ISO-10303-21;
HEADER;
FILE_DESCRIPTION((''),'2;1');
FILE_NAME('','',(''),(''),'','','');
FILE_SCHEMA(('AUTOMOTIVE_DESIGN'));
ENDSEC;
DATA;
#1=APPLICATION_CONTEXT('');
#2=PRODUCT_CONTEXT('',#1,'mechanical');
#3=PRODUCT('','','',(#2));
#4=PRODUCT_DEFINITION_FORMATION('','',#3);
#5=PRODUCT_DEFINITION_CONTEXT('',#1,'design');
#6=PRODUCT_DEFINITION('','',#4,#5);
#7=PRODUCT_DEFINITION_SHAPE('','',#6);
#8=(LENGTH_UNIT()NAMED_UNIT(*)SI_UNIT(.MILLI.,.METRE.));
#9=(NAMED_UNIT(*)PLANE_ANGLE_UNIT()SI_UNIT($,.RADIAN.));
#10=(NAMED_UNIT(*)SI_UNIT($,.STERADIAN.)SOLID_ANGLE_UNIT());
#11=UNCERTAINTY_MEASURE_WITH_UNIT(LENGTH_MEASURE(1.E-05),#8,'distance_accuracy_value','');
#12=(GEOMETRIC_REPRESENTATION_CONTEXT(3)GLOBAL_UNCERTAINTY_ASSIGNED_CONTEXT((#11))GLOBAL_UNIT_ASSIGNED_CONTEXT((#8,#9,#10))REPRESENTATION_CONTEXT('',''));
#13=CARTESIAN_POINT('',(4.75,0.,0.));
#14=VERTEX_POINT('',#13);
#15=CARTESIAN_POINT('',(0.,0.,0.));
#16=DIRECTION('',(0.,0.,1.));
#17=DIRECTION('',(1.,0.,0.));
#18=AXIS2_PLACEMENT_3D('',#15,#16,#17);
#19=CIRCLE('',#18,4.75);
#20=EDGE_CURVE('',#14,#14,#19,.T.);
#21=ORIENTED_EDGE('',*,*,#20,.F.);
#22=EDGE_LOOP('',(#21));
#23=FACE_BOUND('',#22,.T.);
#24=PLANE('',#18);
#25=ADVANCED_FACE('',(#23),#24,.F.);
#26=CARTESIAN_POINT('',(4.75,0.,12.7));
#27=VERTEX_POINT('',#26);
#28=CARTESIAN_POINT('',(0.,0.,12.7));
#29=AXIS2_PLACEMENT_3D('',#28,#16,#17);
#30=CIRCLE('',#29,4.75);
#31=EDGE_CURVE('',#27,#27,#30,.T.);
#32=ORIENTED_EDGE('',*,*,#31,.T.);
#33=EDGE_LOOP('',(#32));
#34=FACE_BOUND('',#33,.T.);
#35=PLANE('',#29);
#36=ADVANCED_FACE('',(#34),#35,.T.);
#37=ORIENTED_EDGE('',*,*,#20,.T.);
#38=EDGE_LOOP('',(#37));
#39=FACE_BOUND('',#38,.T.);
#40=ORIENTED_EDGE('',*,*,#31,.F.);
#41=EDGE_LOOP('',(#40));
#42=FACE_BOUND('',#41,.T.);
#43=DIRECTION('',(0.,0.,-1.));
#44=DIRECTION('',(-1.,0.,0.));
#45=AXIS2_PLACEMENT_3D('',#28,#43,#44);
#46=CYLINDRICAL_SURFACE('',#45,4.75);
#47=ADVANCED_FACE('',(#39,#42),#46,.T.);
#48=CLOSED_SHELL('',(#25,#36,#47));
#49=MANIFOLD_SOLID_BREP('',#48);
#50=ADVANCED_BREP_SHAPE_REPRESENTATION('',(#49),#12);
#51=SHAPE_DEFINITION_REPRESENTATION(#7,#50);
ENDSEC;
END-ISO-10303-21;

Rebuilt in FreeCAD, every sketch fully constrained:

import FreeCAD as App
import Part
import Sketcher
Q = App.Units.Quantity

doc = App.newDocument("Part")
body = doc.addObject("PartDesign::Body", "Body")

# Sketch on XY plane
sketch1 = body.newObject("Sketcher::SketchObject", "Sketch")
sketch1.AttachmentSupport = (doc.getObject("XY_Plane"), [""])
sketch1.MapMode = "FlatFace"
sketch1.addGeometry(Part.Circle(App.Vector(0, 0, 0), App.Vector(0, 0, 1), 4.75), False)
sketch1.addConstraint([
    Sketcher.Constraint("Coincident", 0, 3, -1, 1),
    Sketcher.Constraint("Diameter", 0, Q("9.5 mm")),
])
pad1 = body.newObject("PartDesign::Pad", "Pad")
pad1.Profile = sketch1
pad1.Length = 12.7

doc.recompute()
